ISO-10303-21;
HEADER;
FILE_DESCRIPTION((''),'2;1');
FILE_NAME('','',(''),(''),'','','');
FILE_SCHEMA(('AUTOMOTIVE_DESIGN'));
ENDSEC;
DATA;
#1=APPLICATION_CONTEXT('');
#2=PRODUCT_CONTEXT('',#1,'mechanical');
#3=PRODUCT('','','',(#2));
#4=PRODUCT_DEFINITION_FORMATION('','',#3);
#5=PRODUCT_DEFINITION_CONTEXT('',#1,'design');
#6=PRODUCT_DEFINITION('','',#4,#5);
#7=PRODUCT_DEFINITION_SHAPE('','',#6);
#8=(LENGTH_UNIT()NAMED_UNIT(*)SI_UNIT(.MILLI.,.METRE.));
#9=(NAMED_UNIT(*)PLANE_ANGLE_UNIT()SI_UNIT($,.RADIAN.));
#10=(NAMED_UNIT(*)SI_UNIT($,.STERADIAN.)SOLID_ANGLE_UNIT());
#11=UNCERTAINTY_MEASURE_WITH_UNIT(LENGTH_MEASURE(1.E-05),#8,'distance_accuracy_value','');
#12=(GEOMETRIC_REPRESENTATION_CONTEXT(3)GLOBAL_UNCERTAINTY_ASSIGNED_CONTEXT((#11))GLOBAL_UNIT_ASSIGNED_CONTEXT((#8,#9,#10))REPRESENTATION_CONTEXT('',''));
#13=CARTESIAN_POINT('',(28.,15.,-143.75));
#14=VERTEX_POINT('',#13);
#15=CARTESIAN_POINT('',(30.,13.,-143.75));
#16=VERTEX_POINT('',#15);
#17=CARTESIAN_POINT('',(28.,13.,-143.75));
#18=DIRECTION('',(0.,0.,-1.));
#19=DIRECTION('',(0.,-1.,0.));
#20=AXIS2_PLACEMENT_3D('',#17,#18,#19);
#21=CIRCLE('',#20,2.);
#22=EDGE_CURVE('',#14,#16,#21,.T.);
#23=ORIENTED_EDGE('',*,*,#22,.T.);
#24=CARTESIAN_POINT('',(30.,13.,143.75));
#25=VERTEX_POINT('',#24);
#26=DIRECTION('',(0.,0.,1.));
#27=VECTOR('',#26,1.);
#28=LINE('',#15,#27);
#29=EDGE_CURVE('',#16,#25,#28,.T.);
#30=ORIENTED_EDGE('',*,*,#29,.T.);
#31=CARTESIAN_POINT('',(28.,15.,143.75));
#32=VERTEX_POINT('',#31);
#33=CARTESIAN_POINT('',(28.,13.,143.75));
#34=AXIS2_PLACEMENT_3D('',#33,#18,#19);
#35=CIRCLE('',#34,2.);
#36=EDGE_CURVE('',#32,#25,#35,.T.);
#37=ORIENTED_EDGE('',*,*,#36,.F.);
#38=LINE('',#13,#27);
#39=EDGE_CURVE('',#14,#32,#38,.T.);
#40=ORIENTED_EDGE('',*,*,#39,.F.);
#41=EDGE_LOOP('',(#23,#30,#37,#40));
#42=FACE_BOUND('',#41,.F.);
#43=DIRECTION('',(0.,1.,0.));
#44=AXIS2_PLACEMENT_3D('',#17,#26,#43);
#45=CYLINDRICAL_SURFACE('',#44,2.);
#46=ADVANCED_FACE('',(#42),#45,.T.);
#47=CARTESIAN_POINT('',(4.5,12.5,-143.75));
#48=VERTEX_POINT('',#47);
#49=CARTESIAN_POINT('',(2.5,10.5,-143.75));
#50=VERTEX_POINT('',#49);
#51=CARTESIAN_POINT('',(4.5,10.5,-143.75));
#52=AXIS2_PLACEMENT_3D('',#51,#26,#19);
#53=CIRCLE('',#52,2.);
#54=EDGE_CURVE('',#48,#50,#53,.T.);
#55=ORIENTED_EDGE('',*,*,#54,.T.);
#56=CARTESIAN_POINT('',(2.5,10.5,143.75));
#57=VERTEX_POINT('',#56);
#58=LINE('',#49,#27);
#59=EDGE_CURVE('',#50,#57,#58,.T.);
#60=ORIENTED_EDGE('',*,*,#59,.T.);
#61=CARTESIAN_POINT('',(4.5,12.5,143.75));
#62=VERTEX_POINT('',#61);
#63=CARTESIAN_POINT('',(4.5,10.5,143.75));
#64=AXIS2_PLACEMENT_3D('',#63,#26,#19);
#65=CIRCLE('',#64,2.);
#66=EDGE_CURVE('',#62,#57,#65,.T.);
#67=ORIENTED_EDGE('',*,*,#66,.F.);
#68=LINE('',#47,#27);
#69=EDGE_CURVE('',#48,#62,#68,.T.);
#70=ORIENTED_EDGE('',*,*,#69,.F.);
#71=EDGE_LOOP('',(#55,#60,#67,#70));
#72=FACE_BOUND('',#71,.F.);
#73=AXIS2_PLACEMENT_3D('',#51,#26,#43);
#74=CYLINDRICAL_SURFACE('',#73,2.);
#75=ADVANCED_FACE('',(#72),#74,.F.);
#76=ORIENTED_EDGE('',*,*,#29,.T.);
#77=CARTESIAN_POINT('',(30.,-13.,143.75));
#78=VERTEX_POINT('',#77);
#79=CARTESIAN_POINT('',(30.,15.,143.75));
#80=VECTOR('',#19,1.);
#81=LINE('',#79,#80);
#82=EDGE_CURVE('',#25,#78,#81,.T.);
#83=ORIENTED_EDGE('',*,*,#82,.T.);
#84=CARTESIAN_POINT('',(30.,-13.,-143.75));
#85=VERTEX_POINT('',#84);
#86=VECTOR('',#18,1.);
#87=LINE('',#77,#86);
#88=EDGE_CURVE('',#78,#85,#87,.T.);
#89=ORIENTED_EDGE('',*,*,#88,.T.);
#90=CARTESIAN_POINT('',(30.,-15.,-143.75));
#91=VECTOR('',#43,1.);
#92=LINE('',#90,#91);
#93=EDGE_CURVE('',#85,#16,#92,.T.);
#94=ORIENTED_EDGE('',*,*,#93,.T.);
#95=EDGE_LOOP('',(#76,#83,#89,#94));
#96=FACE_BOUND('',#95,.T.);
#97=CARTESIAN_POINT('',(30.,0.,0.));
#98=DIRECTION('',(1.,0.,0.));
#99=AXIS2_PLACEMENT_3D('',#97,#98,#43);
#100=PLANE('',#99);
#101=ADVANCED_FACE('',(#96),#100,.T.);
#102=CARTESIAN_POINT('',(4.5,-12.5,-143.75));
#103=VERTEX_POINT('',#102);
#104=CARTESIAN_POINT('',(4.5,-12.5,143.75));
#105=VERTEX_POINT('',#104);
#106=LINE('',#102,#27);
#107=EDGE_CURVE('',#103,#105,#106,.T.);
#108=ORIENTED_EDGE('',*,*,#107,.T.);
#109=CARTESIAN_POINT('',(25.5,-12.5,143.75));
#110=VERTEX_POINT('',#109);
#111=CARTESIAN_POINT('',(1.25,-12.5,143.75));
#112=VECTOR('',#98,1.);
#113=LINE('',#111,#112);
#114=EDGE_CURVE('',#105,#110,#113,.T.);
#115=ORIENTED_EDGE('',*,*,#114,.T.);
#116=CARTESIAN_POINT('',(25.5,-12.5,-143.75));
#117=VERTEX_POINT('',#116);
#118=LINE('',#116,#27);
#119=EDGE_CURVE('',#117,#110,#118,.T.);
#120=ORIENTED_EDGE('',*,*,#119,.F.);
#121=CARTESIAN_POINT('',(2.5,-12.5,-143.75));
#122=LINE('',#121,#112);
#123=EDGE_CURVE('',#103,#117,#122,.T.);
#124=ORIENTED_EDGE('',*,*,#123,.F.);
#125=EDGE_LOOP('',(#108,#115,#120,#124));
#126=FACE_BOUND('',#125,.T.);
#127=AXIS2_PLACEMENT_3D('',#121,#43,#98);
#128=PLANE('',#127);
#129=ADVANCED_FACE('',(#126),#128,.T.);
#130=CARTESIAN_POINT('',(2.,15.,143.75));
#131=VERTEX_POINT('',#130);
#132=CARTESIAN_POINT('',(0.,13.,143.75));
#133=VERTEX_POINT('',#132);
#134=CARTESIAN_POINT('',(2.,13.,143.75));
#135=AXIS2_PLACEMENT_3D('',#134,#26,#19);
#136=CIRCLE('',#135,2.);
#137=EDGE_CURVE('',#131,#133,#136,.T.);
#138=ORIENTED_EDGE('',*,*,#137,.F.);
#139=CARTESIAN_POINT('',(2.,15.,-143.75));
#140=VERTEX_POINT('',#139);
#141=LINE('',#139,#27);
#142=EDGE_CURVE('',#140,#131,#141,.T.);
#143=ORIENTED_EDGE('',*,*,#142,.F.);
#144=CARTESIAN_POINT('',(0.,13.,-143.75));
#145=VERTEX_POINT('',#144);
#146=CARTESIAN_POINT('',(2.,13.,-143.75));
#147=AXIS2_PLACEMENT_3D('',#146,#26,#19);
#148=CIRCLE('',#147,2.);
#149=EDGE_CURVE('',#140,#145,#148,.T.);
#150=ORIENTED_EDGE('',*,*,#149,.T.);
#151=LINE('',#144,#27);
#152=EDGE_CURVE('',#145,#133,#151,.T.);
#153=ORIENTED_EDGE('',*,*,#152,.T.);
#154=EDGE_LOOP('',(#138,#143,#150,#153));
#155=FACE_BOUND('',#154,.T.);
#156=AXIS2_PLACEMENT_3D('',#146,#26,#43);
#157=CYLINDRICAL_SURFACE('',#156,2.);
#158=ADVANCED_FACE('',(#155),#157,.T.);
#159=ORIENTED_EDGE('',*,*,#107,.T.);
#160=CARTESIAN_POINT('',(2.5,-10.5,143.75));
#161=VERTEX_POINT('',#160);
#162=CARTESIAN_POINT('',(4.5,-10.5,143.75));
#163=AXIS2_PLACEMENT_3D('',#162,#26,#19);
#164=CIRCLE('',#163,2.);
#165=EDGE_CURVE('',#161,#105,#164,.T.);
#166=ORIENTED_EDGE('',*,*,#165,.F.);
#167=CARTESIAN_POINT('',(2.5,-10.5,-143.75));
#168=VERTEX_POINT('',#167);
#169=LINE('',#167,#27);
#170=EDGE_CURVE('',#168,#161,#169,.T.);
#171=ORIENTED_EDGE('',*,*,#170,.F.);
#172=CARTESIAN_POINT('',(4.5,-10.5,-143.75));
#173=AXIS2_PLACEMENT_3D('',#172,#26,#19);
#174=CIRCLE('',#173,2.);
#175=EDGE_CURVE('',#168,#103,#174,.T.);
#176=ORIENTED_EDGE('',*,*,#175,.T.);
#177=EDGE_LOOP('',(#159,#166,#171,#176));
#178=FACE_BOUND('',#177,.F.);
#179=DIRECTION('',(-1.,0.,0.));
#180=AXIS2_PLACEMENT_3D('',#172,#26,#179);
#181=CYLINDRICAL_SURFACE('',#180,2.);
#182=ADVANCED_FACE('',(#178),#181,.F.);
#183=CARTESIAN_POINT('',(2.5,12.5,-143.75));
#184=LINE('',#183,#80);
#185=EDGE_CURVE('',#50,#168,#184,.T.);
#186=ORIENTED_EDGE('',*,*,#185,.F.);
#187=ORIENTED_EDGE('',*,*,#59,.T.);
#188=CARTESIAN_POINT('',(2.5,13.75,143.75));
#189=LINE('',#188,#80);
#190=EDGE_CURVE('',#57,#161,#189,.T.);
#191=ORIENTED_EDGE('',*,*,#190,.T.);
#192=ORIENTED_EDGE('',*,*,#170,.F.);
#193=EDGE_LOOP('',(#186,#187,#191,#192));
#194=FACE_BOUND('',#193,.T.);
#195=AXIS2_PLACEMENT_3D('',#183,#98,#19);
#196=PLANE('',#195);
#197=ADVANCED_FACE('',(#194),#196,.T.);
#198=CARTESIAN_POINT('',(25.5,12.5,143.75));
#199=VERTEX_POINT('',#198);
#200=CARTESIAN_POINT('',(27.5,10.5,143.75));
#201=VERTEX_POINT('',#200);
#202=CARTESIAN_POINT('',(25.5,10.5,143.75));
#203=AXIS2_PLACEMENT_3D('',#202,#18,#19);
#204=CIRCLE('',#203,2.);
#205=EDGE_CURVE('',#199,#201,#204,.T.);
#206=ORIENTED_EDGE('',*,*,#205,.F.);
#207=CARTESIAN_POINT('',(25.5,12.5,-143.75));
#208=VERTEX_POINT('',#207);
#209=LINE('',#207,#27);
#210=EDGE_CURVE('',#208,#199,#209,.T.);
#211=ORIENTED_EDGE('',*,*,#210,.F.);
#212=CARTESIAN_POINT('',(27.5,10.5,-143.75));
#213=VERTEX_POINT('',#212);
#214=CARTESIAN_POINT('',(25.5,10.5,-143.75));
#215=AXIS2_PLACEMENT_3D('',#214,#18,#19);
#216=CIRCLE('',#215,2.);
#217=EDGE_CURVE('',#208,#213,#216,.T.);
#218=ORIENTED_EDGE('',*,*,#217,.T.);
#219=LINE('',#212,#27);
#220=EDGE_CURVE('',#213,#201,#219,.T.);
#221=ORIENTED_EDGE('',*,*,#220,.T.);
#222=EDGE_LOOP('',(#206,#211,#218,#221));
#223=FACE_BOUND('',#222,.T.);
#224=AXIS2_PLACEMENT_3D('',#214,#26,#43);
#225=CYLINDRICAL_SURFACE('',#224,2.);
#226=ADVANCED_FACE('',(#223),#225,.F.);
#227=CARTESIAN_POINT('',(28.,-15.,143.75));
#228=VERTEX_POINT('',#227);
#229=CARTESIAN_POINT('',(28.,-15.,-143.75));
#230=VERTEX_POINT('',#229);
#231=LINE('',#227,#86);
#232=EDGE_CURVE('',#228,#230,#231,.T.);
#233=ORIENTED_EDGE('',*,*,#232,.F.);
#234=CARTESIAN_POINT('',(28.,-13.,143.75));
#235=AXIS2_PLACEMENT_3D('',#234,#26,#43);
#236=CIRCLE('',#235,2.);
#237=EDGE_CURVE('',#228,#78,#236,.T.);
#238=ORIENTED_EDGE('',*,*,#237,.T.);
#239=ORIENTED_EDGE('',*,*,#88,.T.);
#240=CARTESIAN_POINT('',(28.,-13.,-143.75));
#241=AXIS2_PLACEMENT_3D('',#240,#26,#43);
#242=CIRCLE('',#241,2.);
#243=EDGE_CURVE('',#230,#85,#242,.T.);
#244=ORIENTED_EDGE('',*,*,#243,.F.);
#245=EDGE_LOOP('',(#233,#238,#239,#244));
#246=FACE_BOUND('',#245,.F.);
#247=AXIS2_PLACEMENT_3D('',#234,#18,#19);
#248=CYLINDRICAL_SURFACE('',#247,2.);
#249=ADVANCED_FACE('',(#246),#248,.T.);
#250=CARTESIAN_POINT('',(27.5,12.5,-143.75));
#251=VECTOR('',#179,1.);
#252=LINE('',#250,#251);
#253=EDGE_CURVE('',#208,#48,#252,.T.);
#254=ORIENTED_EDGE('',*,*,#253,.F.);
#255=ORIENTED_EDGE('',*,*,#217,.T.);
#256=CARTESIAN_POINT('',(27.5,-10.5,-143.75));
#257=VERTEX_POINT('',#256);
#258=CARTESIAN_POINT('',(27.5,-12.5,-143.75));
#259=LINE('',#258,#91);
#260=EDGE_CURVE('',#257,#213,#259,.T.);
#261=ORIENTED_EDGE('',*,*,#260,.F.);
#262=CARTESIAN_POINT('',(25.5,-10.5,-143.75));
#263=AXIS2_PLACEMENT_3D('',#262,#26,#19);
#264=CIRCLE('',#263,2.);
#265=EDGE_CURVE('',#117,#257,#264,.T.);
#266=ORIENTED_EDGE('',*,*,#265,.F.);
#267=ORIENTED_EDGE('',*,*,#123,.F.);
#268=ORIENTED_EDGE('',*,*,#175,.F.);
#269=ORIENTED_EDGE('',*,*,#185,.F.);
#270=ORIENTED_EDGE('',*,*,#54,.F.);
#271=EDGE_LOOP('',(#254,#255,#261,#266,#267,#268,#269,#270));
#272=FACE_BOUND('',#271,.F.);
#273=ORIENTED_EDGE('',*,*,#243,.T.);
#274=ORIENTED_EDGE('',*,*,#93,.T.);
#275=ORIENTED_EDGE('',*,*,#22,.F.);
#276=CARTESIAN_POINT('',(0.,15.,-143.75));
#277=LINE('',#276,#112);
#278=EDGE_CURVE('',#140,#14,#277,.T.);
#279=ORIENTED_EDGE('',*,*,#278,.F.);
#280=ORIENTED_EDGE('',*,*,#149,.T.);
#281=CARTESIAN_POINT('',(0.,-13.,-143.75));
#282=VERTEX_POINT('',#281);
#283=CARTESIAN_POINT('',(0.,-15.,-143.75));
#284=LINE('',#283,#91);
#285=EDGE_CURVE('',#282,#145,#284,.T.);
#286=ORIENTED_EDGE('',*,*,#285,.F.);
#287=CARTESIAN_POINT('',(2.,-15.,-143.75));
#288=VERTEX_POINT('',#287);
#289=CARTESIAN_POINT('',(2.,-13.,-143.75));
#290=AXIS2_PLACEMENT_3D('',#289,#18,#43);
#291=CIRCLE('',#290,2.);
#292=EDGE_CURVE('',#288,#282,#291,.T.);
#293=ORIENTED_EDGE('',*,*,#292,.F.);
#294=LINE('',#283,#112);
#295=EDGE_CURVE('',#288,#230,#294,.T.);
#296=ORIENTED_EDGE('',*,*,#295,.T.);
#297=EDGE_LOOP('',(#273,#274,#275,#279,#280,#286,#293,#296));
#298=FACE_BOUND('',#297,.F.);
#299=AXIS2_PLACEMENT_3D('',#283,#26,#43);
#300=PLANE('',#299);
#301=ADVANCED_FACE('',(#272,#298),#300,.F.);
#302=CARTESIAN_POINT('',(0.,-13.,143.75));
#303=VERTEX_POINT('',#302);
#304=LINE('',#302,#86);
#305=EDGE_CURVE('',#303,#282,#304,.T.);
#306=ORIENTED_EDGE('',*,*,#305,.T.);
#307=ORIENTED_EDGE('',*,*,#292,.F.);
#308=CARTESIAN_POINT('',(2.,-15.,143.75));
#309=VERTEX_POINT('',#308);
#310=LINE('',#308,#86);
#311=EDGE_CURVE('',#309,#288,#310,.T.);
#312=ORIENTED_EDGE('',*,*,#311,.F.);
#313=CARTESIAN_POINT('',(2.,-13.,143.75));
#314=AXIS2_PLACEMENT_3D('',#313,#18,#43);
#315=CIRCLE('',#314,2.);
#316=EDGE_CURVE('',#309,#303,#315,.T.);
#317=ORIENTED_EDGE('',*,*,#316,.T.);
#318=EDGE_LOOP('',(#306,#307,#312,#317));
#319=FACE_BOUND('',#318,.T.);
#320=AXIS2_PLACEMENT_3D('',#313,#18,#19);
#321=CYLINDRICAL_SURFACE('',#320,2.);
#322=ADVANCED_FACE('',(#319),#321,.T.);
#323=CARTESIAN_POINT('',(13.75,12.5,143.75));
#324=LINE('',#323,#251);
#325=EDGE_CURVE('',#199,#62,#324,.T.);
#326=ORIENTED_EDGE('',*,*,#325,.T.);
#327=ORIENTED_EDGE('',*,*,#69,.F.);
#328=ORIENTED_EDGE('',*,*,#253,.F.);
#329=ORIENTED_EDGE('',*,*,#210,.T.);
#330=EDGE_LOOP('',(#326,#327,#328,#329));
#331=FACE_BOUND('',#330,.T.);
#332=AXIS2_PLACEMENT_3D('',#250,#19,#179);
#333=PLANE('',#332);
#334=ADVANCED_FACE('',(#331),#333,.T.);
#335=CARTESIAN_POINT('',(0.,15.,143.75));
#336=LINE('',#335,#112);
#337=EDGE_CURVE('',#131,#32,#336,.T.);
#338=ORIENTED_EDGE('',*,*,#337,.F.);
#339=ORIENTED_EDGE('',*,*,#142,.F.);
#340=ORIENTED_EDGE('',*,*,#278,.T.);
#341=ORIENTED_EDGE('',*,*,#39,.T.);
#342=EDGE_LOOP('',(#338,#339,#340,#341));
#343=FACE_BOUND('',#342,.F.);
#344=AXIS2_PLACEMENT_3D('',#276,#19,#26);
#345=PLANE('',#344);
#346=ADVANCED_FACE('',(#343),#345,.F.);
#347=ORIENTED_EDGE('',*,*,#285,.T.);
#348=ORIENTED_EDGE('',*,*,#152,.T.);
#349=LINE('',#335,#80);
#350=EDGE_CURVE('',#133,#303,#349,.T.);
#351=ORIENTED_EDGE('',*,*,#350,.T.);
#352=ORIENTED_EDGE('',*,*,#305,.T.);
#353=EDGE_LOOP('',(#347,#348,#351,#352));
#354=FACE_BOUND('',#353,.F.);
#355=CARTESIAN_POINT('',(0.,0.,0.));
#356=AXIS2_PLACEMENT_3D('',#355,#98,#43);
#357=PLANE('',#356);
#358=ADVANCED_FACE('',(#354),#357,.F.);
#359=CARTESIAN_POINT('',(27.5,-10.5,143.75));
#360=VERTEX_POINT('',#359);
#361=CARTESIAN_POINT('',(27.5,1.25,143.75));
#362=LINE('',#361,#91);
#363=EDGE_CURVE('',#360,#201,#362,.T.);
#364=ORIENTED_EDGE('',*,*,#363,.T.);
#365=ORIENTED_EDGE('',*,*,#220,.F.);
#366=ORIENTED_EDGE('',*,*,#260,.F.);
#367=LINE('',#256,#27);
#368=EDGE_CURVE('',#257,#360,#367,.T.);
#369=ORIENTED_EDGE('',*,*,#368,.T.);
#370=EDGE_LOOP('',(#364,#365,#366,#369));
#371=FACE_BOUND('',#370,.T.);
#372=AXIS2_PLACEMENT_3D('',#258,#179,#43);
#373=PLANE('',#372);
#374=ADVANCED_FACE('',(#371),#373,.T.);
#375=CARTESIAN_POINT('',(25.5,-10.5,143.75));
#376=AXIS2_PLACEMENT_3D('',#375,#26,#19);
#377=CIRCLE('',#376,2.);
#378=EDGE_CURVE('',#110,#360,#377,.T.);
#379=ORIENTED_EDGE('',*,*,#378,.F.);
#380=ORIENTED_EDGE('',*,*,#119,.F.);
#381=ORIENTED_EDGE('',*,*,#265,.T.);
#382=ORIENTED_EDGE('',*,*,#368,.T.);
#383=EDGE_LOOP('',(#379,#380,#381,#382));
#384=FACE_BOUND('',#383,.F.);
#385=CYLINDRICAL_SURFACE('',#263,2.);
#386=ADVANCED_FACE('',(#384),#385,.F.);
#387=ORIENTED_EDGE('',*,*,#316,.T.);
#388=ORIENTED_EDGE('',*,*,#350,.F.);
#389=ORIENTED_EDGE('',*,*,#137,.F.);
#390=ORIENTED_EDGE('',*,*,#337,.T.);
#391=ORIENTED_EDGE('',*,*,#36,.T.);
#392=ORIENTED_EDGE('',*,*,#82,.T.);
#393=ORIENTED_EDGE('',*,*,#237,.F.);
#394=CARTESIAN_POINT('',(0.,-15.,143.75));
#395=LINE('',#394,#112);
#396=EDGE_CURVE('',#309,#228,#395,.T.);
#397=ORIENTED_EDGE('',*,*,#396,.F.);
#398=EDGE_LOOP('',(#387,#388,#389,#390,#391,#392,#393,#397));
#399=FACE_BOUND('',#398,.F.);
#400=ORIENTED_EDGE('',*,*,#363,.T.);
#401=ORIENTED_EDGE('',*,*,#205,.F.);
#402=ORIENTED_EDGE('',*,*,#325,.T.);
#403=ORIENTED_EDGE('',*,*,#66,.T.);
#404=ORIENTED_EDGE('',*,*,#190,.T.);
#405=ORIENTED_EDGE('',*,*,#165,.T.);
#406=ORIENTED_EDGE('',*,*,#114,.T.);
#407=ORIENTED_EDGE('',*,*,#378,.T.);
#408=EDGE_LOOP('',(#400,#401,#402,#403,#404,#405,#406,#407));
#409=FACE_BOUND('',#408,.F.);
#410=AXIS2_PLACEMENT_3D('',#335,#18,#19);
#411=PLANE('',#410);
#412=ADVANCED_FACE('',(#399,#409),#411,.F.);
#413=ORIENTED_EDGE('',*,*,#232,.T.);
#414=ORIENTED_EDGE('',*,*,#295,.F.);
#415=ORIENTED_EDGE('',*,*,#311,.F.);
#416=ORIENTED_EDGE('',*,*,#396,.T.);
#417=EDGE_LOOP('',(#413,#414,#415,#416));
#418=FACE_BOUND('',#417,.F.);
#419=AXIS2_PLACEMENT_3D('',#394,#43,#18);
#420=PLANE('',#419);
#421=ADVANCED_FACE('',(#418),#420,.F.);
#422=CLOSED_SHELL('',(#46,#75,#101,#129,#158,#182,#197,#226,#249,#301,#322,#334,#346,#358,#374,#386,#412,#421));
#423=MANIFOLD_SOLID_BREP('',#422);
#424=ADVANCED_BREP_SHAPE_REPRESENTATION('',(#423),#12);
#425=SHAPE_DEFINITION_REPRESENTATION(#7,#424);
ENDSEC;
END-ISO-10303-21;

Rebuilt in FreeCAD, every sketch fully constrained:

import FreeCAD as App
import Part
import Sketcher
from FreeCAD import Vector


def edges_at(feature, points):
    """Names of the edges that pass closest to the given points."""
    edges = feature.Shape.Edges
    near = lambda p: min(range(len(edges)), key=lambda i: edges[i].distToShape(Part.Vertex(*p))[0])
    return sorted({f"Edge{near(p) + 1}" for p in points})


def add_polygon(sketch, points):
    """Adds a closed chain of lines whose ends are joined by coincident constraints."""
    first, n = sketch.GeometryCount, len(points)
    for a, b in zip(points, points[1:] + points[:1]):
        sketch.addGeometry(Part.LineSegment(App.Vector(*a, 0), App.Vector(*b, 0)), False)
    for i in range(n):
        sketch.addConstraint(Sketcher.Constraint("Coincident", first + i, 2, first + (i + 1) % n, 1))

doc = App.newDocument("Part")
body = doc.addObject("PartDesign::Body", "Body")

# Sketch on YZ plane
sketch1 = doc.addObject("Sketcher::SketchObject", "Sketch")
body.addObject(sketch1)
sketch1.AttachmentSupport = (doc.YZ_Plane, [""])
sketch1.MapMode = "FlatFace"
add_polygon(sketch1, [(15, -144), (15, 144), (-15, 144), (-15, -144)])  # lines 0-3
sketch1.addConstraint([
    Sketcher.Constraint("Vertical", 0),
    Sketcher.Constraint("Horizontal", 1),
    Sketcher.Constraint("Vertical", 2),
    Sketcher.Constraint("Horizontal", 3),
    Sketcher.Constraint("Symmetric", 0, 2, 2, 2, -1, 1),
    Sketcher.Constraint("DistanceX", 1, 2, 1, 1, 30.0),
    Sketcher.Constraint("DistanceY", 0, 1, 0, 2, 287.5),
])
pad1 = doc.addObject("PartDesign::Pad", "Pad")
body.addObject(pad1)
pad1.Profile = sketch1
pad1.Length = 30
doc.recompute()

fillet = doc.addObject("PartDesign::Fillet", "Fillet")
body.addObject(fillet)
fillet.Base = (pad1, edges_at(pad1, [
    (0, 15, 0),
    (0, -15, 0),
    (30, -15, 0),
    (30, 15, 0),
]))
fillet.Radius = 2

# Sketch on XY plane
sketch2 = doc.addObject("Sketcher::SketchObject", "Sketch001")
body.addObject(sketch2)
sketch2.AttachmentSupport = (doc.XY_Plane, [""])
sketch2.MapMode = "FlatFace"
sketch2.AttachmentOffset = App.Placement(Vector(0, 0, -143.75), App.Rotation())
add_polygon(sketch2, [(2, 12), (28, 12), (28, -12), (2, -12)])  # lines 0-3
sketch2.addConstraint([
    Sketcher.Constraint("Horizontal", 0),
    Sketcher.Constraint("Vertical", 1),
    Sketcher.Constraint("Horizontal", 2),
    Sketcher.Constraint("Vertical", 3),
    Sketcher.Constraint("Equal", 2, 1),
    Sketcher.Constraint("DistanceX", -1, 1, 2, 2, 2.5),
    Sketcher.Constraint("DistanceX", 0, 1, 0, 2, 25.0),
    Sketcher.Constraint("DistanceY", -1, 1, 0, 2, 12.5),
])
pocket1 = doc.addObject("PartDesign::Pocket", "Pocket")
body.addObject(pocket1)
pocket1.Profile = sketch2
pocket1.Length = 300
pocket1.Reversed = True
doc.recompute()

fillet2 = doc.addObject("PartDesign::Fillet", "Fillet001")
body.addObject(fillet2)
fillet2.Base = (pocket1, edges_at(pocket1, [
    (27.5, -12.5, 0),
    (27.5, 12.5, 0),
    (2.5, 12.5, 0),
    (2.5, -12.5, 0),
]))
fillet2.Radius = 2

doc.recompute()
